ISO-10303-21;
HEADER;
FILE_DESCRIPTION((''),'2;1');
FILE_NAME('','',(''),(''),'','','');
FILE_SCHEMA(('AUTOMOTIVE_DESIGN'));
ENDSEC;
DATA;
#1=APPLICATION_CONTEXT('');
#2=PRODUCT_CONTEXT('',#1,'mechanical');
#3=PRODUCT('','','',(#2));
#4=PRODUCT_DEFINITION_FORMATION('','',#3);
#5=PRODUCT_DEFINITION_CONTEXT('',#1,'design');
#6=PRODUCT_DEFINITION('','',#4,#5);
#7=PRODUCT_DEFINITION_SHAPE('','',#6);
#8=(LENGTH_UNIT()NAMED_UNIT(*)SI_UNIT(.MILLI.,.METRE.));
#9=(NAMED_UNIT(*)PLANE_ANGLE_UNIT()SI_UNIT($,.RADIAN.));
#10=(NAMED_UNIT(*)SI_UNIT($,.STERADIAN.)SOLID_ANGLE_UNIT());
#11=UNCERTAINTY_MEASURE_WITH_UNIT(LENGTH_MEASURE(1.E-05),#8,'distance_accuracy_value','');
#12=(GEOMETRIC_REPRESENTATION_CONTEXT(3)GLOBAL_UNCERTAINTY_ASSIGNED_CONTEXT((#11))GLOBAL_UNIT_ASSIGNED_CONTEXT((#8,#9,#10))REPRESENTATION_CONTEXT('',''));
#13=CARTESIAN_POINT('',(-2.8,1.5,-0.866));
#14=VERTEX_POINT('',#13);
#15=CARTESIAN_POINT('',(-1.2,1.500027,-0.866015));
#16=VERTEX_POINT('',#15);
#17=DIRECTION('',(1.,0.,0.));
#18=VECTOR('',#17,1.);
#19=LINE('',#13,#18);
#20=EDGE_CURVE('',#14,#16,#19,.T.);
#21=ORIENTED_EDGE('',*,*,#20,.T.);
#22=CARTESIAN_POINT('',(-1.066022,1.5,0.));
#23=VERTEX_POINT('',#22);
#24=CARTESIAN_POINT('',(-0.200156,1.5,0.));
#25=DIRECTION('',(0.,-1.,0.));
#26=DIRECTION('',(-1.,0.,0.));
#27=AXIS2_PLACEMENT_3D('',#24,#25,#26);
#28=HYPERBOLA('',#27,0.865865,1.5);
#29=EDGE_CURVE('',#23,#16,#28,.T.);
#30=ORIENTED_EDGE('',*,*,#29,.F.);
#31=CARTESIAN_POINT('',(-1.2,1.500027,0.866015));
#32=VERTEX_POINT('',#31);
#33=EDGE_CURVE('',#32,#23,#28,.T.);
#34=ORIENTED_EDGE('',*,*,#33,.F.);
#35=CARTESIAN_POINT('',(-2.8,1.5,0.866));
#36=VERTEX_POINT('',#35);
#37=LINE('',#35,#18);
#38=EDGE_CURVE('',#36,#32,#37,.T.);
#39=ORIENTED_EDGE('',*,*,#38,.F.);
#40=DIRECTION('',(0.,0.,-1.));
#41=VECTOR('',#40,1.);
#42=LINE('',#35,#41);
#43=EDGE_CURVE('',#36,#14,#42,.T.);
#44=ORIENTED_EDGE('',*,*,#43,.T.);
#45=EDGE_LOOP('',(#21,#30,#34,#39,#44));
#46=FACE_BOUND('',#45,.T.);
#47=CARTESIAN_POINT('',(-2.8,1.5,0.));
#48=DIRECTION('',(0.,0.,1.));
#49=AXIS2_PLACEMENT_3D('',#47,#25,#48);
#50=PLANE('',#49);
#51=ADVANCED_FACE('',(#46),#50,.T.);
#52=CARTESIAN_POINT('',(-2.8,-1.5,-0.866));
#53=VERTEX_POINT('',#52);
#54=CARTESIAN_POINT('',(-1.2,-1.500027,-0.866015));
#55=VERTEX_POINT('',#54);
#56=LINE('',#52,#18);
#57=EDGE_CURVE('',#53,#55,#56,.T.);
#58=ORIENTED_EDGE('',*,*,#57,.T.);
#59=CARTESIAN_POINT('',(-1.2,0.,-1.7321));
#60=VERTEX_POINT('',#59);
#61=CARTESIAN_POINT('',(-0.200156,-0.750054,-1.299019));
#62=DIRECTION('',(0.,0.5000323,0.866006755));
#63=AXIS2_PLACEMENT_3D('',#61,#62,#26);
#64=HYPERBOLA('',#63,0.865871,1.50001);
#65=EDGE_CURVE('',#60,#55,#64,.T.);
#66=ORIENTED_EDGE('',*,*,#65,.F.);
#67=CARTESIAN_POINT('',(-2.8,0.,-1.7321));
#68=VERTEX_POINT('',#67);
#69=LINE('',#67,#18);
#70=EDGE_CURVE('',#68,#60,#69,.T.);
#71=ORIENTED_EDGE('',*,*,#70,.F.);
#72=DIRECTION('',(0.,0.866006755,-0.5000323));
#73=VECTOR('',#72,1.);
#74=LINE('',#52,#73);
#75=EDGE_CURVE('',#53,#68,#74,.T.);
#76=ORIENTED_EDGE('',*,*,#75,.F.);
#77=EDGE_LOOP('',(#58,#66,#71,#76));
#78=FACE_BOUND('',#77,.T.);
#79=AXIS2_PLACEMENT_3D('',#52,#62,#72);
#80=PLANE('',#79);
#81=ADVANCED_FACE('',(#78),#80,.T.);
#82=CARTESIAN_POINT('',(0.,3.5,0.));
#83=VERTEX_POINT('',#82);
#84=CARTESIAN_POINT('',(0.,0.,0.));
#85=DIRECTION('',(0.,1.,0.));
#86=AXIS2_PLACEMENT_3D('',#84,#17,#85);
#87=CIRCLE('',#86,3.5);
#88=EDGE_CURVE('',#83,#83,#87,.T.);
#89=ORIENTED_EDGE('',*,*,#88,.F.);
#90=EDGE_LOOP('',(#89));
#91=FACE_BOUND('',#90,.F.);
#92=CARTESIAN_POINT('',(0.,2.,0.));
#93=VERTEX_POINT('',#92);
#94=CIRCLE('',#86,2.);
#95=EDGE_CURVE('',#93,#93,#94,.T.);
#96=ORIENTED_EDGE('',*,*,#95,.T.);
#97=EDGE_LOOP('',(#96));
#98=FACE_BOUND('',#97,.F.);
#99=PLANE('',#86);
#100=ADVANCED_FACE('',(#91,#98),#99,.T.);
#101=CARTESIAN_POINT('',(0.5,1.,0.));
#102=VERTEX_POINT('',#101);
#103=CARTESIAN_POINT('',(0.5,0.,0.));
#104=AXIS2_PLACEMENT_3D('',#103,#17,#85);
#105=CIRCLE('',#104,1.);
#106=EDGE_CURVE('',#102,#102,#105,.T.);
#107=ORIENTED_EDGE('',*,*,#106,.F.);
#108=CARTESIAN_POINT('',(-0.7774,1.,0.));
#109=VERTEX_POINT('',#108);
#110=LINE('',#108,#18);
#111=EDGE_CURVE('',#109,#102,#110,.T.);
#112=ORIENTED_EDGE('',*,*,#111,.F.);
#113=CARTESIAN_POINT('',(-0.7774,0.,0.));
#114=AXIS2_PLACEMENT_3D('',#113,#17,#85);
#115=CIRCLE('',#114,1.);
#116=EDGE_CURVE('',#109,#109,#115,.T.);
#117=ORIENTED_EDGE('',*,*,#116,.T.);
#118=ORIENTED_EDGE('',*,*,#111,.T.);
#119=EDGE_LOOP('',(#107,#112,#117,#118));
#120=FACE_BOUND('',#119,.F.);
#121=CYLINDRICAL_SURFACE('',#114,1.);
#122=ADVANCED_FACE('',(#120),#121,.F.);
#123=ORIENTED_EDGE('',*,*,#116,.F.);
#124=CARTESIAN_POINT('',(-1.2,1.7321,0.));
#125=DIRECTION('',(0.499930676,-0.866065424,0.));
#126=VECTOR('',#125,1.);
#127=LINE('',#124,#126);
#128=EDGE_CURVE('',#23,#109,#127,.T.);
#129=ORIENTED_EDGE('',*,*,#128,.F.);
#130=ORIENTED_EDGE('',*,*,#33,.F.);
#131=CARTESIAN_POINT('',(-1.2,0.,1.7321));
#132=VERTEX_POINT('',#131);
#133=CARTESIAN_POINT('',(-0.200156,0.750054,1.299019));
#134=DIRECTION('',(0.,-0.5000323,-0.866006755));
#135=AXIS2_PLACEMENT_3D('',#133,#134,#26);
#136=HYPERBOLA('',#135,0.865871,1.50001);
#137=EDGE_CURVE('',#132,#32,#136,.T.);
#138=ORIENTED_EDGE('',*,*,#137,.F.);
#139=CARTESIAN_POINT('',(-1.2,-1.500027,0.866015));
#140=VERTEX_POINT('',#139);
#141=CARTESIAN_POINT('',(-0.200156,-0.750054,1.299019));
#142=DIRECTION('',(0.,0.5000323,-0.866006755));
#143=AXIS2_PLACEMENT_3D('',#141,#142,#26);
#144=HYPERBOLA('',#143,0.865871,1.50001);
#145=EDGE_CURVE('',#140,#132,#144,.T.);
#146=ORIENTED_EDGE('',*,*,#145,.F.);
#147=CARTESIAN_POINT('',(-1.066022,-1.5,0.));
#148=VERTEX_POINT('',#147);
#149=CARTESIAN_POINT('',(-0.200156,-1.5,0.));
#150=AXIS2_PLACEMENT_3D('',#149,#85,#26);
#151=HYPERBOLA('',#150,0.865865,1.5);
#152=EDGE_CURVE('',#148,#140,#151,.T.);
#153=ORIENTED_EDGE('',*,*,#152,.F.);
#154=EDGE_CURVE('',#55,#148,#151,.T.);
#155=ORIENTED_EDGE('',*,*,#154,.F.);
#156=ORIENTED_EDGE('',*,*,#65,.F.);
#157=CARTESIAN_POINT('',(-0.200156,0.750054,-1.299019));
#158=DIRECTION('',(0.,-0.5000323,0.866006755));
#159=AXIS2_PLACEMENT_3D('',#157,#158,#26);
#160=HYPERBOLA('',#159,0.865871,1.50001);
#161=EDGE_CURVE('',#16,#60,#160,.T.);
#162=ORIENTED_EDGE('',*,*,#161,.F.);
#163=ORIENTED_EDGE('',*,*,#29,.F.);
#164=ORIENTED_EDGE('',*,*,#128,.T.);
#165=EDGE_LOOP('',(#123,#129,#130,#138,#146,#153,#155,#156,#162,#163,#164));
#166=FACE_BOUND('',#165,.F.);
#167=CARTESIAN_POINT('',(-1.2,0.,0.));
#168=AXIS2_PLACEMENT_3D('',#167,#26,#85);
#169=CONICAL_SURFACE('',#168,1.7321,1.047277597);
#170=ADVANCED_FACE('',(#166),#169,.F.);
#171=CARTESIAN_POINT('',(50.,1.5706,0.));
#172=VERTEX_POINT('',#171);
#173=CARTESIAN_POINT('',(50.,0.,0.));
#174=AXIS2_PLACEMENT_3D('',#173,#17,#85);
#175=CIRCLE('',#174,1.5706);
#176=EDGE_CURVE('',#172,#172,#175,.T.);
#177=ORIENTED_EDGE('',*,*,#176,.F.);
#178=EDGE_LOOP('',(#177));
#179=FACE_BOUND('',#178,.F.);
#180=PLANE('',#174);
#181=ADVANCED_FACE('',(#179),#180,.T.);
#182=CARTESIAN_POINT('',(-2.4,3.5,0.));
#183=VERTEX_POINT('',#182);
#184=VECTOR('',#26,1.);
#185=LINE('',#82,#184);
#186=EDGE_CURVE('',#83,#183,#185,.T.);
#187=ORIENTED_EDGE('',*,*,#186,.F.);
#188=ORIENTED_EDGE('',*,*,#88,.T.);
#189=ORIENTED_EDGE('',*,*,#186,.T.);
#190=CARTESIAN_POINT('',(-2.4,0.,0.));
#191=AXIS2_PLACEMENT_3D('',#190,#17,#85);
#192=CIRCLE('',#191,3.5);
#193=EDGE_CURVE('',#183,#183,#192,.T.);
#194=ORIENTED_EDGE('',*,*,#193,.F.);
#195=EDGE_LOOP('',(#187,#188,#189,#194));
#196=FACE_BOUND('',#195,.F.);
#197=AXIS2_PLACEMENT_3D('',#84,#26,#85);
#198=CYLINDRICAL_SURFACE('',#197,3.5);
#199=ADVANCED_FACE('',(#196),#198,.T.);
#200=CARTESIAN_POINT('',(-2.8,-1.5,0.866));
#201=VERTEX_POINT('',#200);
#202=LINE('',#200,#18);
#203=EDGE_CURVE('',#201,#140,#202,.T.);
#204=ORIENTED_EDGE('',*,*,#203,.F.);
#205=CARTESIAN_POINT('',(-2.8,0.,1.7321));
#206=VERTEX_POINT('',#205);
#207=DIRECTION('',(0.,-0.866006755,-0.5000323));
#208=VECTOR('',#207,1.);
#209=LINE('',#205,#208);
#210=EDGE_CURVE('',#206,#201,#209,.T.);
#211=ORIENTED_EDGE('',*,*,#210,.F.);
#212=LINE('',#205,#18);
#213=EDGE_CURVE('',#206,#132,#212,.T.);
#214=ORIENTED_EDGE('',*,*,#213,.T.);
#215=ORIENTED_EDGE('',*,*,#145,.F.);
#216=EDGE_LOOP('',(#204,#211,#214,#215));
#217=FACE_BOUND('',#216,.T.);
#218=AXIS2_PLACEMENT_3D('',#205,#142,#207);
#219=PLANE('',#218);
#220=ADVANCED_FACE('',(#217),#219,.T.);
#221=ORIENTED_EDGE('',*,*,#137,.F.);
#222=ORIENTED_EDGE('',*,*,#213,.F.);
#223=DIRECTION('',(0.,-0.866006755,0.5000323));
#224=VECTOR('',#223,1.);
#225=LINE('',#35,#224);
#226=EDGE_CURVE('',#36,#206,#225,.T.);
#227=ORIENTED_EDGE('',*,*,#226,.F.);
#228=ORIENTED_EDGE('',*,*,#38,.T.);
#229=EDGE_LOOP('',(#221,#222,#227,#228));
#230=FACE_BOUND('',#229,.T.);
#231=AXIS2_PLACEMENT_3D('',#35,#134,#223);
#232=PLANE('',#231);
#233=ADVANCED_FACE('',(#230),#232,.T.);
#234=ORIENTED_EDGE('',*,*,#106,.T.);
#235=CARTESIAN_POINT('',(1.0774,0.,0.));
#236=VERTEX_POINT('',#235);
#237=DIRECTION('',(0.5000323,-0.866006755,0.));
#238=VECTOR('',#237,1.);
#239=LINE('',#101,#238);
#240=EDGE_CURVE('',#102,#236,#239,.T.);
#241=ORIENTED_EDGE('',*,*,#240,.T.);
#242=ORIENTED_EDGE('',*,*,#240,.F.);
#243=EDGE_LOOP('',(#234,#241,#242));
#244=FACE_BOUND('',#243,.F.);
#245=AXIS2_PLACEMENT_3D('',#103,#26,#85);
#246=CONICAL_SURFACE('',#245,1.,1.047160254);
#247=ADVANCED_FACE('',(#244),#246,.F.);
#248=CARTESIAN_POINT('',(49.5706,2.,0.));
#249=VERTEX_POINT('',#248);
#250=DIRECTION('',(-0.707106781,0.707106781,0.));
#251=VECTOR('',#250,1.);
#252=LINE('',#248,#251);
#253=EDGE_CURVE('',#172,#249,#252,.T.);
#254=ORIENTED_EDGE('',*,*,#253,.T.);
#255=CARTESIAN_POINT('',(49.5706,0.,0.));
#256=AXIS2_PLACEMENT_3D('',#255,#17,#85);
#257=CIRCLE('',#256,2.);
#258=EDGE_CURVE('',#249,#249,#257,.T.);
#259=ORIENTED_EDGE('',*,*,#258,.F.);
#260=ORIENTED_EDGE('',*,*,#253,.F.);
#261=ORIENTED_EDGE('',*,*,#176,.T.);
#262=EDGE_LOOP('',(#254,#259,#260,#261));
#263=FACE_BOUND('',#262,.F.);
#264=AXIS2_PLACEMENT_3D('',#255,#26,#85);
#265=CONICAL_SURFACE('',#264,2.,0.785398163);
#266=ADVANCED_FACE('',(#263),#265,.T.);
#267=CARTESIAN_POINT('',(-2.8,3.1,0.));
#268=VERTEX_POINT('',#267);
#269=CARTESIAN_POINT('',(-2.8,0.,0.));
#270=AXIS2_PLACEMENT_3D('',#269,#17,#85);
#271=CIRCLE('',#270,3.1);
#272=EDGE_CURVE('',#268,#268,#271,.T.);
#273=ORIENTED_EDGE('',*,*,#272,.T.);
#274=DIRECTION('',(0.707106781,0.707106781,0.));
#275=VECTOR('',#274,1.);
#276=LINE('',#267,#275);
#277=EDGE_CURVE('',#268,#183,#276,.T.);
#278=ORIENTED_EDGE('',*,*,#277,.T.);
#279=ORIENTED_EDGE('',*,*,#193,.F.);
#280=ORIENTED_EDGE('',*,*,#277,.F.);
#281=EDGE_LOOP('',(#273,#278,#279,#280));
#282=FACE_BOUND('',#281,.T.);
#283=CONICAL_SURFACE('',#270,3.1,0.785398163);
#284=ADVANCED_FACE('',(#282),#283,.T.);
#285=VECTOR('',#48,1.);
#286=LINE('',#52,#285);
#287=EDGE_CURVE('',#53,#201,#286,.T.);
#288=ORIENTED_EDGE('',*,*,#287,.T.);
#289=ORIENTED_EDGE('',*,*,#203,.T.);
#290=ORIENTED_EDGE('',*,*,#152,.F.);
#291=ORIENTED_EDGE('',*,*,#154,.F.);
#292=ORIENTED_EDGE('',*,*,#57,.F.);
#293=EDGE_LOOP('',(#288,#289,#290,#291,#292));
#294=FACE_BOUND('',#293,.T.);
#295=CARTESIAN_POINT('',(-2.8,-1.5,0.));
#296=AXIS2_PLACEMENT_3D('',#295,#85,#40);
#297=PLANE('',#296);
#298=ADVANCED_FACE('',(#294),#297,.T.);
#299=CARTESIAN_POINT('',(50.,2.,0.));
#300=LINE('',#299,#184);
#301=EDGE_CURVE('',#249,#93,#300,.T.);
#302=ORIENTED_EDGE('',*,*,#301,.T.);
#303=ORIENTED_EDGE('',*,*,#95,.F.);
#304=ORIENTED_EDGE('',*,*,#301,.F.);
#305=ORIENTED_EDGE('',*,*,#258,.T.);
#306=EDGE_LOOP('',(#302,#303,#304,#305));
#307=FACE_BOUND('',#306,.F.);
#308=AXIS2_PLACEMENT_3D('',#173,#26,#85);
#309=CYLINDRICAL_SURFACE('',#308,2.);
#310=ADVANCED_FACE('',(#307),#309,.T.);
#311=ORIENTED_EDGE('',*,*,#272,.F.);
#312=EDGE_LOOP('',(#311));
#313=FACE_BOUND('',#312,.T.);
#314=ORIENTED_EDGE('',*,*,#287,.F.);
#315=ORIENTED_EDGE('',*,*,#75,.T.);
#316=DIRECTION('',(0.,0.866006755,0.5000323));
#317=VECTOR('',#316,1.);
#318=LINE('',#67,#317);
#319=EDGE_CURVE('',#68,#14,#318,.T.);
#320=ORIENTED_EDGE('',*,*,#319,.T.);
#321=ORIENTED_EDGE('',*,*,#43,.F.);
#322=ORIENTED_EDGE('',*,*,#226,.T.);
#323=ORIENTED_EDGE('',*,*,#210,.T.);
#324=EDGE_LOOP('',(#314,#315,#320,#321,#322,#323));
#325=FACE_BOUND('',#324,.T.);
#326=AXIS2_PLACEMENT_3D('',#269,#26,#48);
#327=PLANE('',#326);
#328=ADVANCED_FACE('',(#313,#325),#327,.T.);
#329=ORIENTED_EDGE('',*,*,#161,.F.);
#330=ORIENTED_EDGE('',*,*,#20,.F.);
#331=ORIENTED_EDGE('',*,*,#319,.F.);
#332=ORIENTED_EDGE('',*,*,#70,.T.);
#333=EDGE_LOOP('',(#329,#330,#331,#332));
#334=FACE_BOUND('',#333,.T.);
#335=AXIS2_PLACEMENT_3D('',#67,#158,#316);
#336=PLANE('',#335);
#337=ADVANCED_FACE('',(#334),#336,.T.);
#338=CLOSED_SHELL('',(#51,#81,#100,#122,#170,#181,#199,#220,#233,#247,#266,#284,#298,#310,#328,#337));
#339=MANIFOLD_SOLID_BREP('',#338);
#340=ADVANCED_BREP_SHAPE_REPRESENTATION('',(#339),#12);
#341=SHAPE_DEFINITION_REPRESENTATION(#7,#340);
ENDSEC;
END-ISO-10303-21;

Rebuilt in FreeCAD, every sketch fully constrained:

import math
import FreeCAD as App
import Part
import Sketcher
from FreeCAD import Vector
Q = App.Units.Quantity


def edges_at(feature, points):
    """Names of the edges that pass closest to the given points."""
    edges = feature.Shape.Edges
    near = lambda p: min(range(len(edges)), key=lambda i: edges[i].distToShape(Part.Vertex(*p))[0])
    return sorted({f"Edge{near(p) + 1}" for p in points})


def add_polygon(sketch, points):
    """Adds a closed chain of lines whose ends are joined by coincident constraints."""
    first, n = sketch.GeometryCount, len(points)
    for a, b in zip(points, points[1:] + points[:1]):
        sketch.addGeometry(Part.LineSegment(App.Vector(*a, 0), App.Vector(*b, 0)), False)
    for i in range(n):
        sketch.addConstraint(Sketcher.Constraint("Coincident", first + i, 2, first + (i + 1) % n, 1))

doc = App.newDocument("Part")
body = doc.addObject("PartDesign::Body", "Body")

sketch1 = doc.addObject("Sketcher::SketchObject", "Sketch")
body.addObject(sketch1)
sketch1.AttachmentSupport = (doc.XY_Plane, [""])
sketch1.MapMode = "FlatFace"
add_polygon(sketch1, [(0.5, 1), (1.1, 0), (50, 0), (50, 2), (0, 2), (0, 3.5), (-2.8, 3.5), (-2.8, 1.7), (-1.2, 1.7), (-0.8, 1)])
sketch1.addConstraint(Sketcher.Constraint("Horizontal", 1))
sketch1.addConstraint(Sketcher.Constraint("Vertical", 2))
sketch1.addConstraint(Sketcher.Constraint("Horizontal", 3))
sketch1.addConstraint(Sketcher.Constraint("Vertical", 4))
sketch1.addConstraint(Sketcher.Constraint("Horizontal", 5))
sketch1.addConstraint(Sketcher.Constraint("Vertical", 6))
sketch1.addConstraint(Sketcher.Constraint("Horizontal", 7))
sketch1.addConstraint(Sketcher.Constraint("Horizontal", 9))
sketch1.addConstraint(Sketcher.Constraint("PointOnObject", 0, 2, -1))
sketch1.addConstraint(Sketcher.Constraint("PointOnObject", 3, 2, -2))
sketch1.addConstraint(Sketcher.Constraint("Parallel", 0, 8))
sketch1.addConstraint(Sketcher.Constraint("DistanceX", 3, 2, 3, 1, Q("50 mm")))
sketch1.addConstraint(Sketcher.Constraint("DistanceY", 2, 1, 2, 2, Q("2 mm")))
sketch1.addConstraint(Sketcher.Constraint("DistanceX", 5, 2, 5, 1, Q("2.8 mm")))
sketch1.addConstraint(Sketcher.Constraint("DistanceX", 7, 1, 7, 2, Q("1.6 mm")))
sketch1.addConstraint(Sketcher.Constraint("DistanceY", 4, 1, 4, 2, Q("1.5 mm")))
sketch1.addConstraint(Sketcher.Constraint("DistanceY", -1, 1, 8, 2, Q("1 mm")))
sketch1.addConstraint(Sketcher.Constraint("DistanceX", -1, 1, 9, 2, Q("0.5 mm")))
sketch1.addConstraint(Sketcher.Constraint("DistanceY", 6, 2, 6, 1, Q("1.768 mm")))
sketch1.addConstraint(Sketcher.Constraint("DistanceX", 1, 1, 1, 2, Q("48.9226 mm")))
revolution = doc.addObject("PartDesign::Revolution", "Revolution")
body.addObject(revolution)
revolution.Profile = sketch1
revolution.ReferenceAxis = (sketch1, ["H_Axis"])
revolution.Angle = 360

sketch2 = doc.addObject("Sketcher::SketchObject", "Sketch001")
body.addObject(sketch2)
sketch2.AttachmentSupport = (doc.XY_Plane, [""])
sketch2.MapMode = "FlatFace"
add_polygon(sketch2, [(-2.8, 3.1), (-2.4, 3.5), (-2.8, 3.5)])
sketch2.addConstraint(Sketcher.Constraint("Horizontal", 1))
sketch2.addConstraint(Sketcher.Constraint("Vertical", 2))
sketch2.addConstraint(Sketcher.Constraint("Equal", 1, 2))
sketch2.addConstraint(Sketcher.Constraint("DistanceX", 1, 2, 1, 1, Q("0.4 mm")))
sketch2.addConstraint(Sketcher.Constraint("DistanceX", 1, 2, -1, 1, Q("2.8 mm")))
sketch2.addConstraint(Sketcher.Constraint("DistanceY", -1, 1, 0, 2, Q("3.5 mm")))
groove = doc.addObject("PartDesign::Groove", "Groove")
body.addObject(groove)
groove.Profile = sketch2
groove.ReferenceAxis = (sketch2, ["H_Axis"])
groove.Angle = 360

sketch3 = doc.addObject("Sketcher::SketchObject", "Sketch002")
body.addObject(sketch3)
sketch3.AttachmentSupport = (doc.YZ_Plane, [""])
sketch3.MapMode = "FlatFace"
sketch3.AttachmentOffset = App.Placement(Vector(0, 0, -2.8), App.Rotation())
sketch3.addGeometry(Part.LineSegment(Vector(1.5, 0.9, 0), Vector(0, 1.7, 0)), False)
sketch3.addGeometry(Part.ArcOfCircle(Part.Circle(Vector(0, 0, 0), Vector(0, 0, 1), 1.7), math.radians(30), math.radians(90)), False)
sketch3.addGeometry(Part.ArcOfCircle(Part.Circle(Vector(0, 0, 0), Vector(0, 0, 1), 1.7), math.radians(90), math.radians(150)), False)
sketch3.addGeometry(Part.LineSegment(Vector(0, 1.7, 0), Vector(-1.5, 0.9, 0)), False)
sketch3.addGeometry(Part.ArcOfCircle(Part.Circle(Vector(0, 0, 0), Vector(0, 0, 1), 1.7), math.radians(-30), math.radians(30)), False)
sketch3.addGeometry(Part.LineSegment(Vector(1.5, 0.9, 0), Vector(1.5, -0.9, 0)), False)
sketch3.addGeometry(Part.LineSegment(Vector(-1.5, 0.9, 0), Vector(-1.5, -0.9, 0)), False)
sketch3.addGeometry(Part.ArcOfCircle(Part.Circle(Vector(0, 0, 0), Vector(0, 0, 1), 1.7), math.radians(150), math.radians(210)), False)
sketch3.addGeometry(Part.LineSegment(Vector(-1.5, -0.9, 0), Vector(0, -1.7, 0)), False)
sketch3.addGeometry(Part.ArcOfCircle(Part.Circle(Vector(0, 0, 0), Vector(0, 0, 1), 1.7), math.radians(-150), math.radians(-90)), False)
sketch3.addGeometry(Part.ArcOfCircle(Part.Circle(Vector(0, 0, 0), Vector(0, 0, 1), 1.7), math.radians(-90), math.radians(-30)), False)
sketch3.addGeometry(Part.LineSegment(Vector(0, -1.7, 0), Vector(1.5, -0.9, 0)), False)
sketch3.addConstraint(Sketcher.Constraint("Coincident", 0, 1, 1, 1))
sketch3.addConstraint(Sketcher.Constraint("Coincident", 1, 2, 0, 2))
sketch3.addConstraint(Sketcher.Constraint("Coincident", 2, 1, 3, 1))
sketch3.addConstraint(Sketcher.Constraint("Coincident", 3, 2, 2, 2))
sketch3.addConstraint(Sketcher.Constraint("Coincident", 4, 1, 5, 2))
sketch3.addConstraint(Sketcher.Constraint("Coincident", 5, 1, 4, 2))
sketch3.addConstraint(Sketcher.Constraint("Coincident", 6, 1, 7, 1))
sketch3.addConstraint(Sketcher.Constraint("Coincident", 7, 2, 6, 2))
sketch3.addConstraint(Sketcher.Constraint("Coincident", 8, 1, 9, 1))
sketch3.addConstraint(Sketcher.Constraint("Coincident", 9, 2, 8, 2))
sketch3.addConstraint(Sketcher.Constraint("Coincident", 10, 1, 11, 1))
sketch3.addConstraint(Sketcher.Constraint("Coincident", 11, 2, 10, 2))
sketch3.addConstraint(Sketcher.Constraint("Vertical", 5))
sketch3.addConstraint(Sketcher.Constraint("Vertical", 6))
sketch3.addConstraint(Sketcher.Constraint("Coincident", 1, 3, -1, 1))
sketch3.addConstraint(Sketcher.Constraint("Coincident", 2, 3, -1, 1))
sketch3.addConstraint(Sketcher.Constraint("Coincident", 4, 3, -1, 1))
sketch3.addConstraint(Sketcher.Constraint("Coincident", 7, 3, -1, 1))
sketch3.addConstraint(Sketcher.Constraint("Coincident", 9, 3, -1, 1))
sketch3.addConstraint(Sketcher.Constraint("Coincident", 10, 3, -1, 1))
sketch3.addConstraint(Sketcher.Constraint("Coincident", 2, 1, 1, 2))
sketch3.addConstraint(Sketcher.Constraint("Coincident", 5, 1, 0, 1))
sketch3.addConstraint(Sketcher.Constraint("Coincident", 6, 1, 3, 2))
sketch3.addConstraint(Sketcher.Constraint("Coincident", 8, 1, 7, 2))
sketch3.addConstraint(Sketcher.Constraint("Coincident", 10, 1, 9, 2))
sketch3.addConstraint(Sketcher.Constraint("PointOnObject", 1, 2, -2))
sketch3.addConstraint(Sketcher.Constraint("PointOnObject", 9, 2, -2))
sketch3.addConstraint(Sketcher.Constraint("Parallel", 0, 8))
sketch3.addConstraint(Sketcher.Constraint("Parallel", 3, 11))
sketch3.addConstraint(Sketcher.Constraint("Radius", 1, Q("1.732 mm")))
sketch3.addConstraint(Sketcher.Constraint("DistanceX", -1, 1, 0, 1, Q("1.5 mm")))
pad1 = doc.addObject("PartDesign::Pad", "Pad")
body.addObject(pad1)
pad1.Profile = sketch3
pad1.Length = 1.734
doc.recompute()

chamfer = doc.addObject("PartDesign::Chamfer", "Chamfer")
body.addObject(chamfer)
chamfer.Base = (pad1, edges_at(pad1, [(50, -2, 0)]))
chamfer.ChamferType = "Two distances"
chamfer.Size = 0.4294
chamfer.Size2 = 0.4294

doc.recompute()
